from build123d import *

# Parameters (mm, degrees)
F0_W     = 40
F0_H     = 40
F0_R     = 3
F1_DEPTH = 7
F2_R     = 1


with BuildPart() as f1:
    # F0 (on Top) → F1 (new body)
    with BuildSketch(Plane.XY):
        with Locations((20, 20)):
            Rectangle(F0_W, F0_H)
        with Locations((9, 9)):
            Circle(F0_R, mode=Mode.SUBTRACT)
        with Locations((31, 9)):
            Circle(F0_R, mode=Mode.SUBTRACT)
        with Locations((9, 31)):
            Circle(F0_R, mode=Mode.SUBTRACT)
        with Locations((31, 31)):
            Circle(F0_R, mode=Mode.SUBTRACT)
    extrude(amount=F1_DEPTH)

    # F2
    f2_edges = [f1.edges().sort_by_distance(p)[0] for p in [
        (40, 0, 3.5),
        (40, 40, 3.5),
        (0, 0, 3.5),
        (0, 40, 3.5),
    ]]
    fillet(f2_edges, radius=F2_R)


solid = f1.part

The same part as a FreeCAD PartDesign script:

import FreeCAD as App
import Part
import Sketcher
Q = App.Units.Quantity


def edges_at(feature, points):
    """Names of the edges that pass closest to the given points."""
    edges = feature.Shape.Edges
    near = lambda p: min(range(len(edges)), key=lambda i: edges[i].distToShape(Part.Vertex(*p))[0])
    return sorted({f"Edge{near(p) + 1}" for p in points})


def add_polygon(sketch, points):
    """Adds a closed chain of lines whose ends are joined by coincident constraints."""
    first, n = sketch.GeometryCount, len(points)
    for a, b in zip(points, points[1:] + points[:1]):
        sketch.addGeometry(Part.LineSegment(App.Vector(*a, 0), App.Vector(*b, 0)), False)
    for i in range(n):
        sketch.addConstraint(Sketcher.Constraint("Coincident", first + i, 2, first + (i + 1) % n, 1))

doc = App.newDocument("Part")
body = doc.addObject("PartDesign::Body", "Body")

sketch1 = body.newObject("Sketcher::SketchObject", "Sketch")
sketch1.AttachmentSupport = (doc.getObject("XY_Plane"), [""])
sketch1.MapMode = "FlatFace"
add_polygon(sketch1, [(0, 40), (0, 0), (40, 0), (40, 40)])
sketch1.addGeometry(Part.Circle(App.Vector(9, 9, 0), App.Vector(0, 0, 1), 3), False)
sketch1.addGeometry(Part.Circle(App.Vector(31, 9, 0), App.Vector(0, 0, 1), 3), False)
sketch1.addGeometry(Part.Circle(App.Vector(9, 31, 0), App.Vector(0, 0, 1), 3), False)
sketch1.addGeometry(Part.Circle(App.Vector(31, 31, 0), App.Vector(0, 0, 1), 3), False)
sketch1.addConstraint(Sketcher.Constraint("Vertical", 0))
sketch1.addConstraint(Sketcher.Constraint("Horizontal", 1))
sketch1.addConstraint(Sketcher.Constraint("Vertical", 2))
sketch1.addConstraint(Sketcher.Constraint("Horizontal", 3))
sketch1.addConstraint(Sketcher.Constraint("Coincident", 0, 2, -1, 1))
sketch1.addConstraint(Sketcher.Constraint("Equal", 4, 5))
sketch1.addConstraint(Sketcher.Constraint("Equal", 5, 6))
sketch1.addConstraint(Sketcher.Constraint("Equal", 6, 7))
sketch1.addConstraint(Sketcher.Constraint("Horizontal", 4, 3, 5, 3))
sketch1.addConstraint(Sketcher.Constraint("Horizontal", 6, 3, 7, 3))
sketch1.addConstraint(Sketcher.Constraint("Vertical", 4, 3, 6, 3))
sketch1.addConstraint(Sketcher.Constraint("Vertical", 5, 3, 7, 3))
sketch1.addConstraint(Sketcher.Constraint("Equal", 3, 0))
sketch1.addConstraint(Sketcher.Constraint("Diameter", 4, Q("6 mm")))
sketch1.addConstraint(Sketcher.Constraint("DistanceX", 1, 1, 1, 2, Q("40 mm")))
sketch1.addConstraint(Sketcher.Constraint("DistanceX", -1, 1, 4, 3, Q("9 mm")))
sketch1.addConstraint(Sketcher.Constraint("DistanceY", -1, 1, 4, 3, Q("9 mm")))
sketch1.addConstraint(Sketcher.Constraint("DistanceX", -1, 1, 5, 3, Q("31 mm")))
sketch1.addConstraint(Sketcher.Constraint("DistanceY", -1, 1, 6, 3, Q("31 mm")))
pad1 = body.newObject("PartDesign::Pad", "Pad")
pad1.Profile = sketch1
pad1.Length = 7
doc.recompute()

fillet = body.newObject("PartDesign::Fillet", "Fillet")
fillet.Base = (pad1, edges_at(pad1, [
    (40, 0, 3.5),
    (40, 40, 3.5),
    (0, 0, 3.5),
    (0, 40, 3.5),
]))
fillet.Radius = 1

doc.recompute()
